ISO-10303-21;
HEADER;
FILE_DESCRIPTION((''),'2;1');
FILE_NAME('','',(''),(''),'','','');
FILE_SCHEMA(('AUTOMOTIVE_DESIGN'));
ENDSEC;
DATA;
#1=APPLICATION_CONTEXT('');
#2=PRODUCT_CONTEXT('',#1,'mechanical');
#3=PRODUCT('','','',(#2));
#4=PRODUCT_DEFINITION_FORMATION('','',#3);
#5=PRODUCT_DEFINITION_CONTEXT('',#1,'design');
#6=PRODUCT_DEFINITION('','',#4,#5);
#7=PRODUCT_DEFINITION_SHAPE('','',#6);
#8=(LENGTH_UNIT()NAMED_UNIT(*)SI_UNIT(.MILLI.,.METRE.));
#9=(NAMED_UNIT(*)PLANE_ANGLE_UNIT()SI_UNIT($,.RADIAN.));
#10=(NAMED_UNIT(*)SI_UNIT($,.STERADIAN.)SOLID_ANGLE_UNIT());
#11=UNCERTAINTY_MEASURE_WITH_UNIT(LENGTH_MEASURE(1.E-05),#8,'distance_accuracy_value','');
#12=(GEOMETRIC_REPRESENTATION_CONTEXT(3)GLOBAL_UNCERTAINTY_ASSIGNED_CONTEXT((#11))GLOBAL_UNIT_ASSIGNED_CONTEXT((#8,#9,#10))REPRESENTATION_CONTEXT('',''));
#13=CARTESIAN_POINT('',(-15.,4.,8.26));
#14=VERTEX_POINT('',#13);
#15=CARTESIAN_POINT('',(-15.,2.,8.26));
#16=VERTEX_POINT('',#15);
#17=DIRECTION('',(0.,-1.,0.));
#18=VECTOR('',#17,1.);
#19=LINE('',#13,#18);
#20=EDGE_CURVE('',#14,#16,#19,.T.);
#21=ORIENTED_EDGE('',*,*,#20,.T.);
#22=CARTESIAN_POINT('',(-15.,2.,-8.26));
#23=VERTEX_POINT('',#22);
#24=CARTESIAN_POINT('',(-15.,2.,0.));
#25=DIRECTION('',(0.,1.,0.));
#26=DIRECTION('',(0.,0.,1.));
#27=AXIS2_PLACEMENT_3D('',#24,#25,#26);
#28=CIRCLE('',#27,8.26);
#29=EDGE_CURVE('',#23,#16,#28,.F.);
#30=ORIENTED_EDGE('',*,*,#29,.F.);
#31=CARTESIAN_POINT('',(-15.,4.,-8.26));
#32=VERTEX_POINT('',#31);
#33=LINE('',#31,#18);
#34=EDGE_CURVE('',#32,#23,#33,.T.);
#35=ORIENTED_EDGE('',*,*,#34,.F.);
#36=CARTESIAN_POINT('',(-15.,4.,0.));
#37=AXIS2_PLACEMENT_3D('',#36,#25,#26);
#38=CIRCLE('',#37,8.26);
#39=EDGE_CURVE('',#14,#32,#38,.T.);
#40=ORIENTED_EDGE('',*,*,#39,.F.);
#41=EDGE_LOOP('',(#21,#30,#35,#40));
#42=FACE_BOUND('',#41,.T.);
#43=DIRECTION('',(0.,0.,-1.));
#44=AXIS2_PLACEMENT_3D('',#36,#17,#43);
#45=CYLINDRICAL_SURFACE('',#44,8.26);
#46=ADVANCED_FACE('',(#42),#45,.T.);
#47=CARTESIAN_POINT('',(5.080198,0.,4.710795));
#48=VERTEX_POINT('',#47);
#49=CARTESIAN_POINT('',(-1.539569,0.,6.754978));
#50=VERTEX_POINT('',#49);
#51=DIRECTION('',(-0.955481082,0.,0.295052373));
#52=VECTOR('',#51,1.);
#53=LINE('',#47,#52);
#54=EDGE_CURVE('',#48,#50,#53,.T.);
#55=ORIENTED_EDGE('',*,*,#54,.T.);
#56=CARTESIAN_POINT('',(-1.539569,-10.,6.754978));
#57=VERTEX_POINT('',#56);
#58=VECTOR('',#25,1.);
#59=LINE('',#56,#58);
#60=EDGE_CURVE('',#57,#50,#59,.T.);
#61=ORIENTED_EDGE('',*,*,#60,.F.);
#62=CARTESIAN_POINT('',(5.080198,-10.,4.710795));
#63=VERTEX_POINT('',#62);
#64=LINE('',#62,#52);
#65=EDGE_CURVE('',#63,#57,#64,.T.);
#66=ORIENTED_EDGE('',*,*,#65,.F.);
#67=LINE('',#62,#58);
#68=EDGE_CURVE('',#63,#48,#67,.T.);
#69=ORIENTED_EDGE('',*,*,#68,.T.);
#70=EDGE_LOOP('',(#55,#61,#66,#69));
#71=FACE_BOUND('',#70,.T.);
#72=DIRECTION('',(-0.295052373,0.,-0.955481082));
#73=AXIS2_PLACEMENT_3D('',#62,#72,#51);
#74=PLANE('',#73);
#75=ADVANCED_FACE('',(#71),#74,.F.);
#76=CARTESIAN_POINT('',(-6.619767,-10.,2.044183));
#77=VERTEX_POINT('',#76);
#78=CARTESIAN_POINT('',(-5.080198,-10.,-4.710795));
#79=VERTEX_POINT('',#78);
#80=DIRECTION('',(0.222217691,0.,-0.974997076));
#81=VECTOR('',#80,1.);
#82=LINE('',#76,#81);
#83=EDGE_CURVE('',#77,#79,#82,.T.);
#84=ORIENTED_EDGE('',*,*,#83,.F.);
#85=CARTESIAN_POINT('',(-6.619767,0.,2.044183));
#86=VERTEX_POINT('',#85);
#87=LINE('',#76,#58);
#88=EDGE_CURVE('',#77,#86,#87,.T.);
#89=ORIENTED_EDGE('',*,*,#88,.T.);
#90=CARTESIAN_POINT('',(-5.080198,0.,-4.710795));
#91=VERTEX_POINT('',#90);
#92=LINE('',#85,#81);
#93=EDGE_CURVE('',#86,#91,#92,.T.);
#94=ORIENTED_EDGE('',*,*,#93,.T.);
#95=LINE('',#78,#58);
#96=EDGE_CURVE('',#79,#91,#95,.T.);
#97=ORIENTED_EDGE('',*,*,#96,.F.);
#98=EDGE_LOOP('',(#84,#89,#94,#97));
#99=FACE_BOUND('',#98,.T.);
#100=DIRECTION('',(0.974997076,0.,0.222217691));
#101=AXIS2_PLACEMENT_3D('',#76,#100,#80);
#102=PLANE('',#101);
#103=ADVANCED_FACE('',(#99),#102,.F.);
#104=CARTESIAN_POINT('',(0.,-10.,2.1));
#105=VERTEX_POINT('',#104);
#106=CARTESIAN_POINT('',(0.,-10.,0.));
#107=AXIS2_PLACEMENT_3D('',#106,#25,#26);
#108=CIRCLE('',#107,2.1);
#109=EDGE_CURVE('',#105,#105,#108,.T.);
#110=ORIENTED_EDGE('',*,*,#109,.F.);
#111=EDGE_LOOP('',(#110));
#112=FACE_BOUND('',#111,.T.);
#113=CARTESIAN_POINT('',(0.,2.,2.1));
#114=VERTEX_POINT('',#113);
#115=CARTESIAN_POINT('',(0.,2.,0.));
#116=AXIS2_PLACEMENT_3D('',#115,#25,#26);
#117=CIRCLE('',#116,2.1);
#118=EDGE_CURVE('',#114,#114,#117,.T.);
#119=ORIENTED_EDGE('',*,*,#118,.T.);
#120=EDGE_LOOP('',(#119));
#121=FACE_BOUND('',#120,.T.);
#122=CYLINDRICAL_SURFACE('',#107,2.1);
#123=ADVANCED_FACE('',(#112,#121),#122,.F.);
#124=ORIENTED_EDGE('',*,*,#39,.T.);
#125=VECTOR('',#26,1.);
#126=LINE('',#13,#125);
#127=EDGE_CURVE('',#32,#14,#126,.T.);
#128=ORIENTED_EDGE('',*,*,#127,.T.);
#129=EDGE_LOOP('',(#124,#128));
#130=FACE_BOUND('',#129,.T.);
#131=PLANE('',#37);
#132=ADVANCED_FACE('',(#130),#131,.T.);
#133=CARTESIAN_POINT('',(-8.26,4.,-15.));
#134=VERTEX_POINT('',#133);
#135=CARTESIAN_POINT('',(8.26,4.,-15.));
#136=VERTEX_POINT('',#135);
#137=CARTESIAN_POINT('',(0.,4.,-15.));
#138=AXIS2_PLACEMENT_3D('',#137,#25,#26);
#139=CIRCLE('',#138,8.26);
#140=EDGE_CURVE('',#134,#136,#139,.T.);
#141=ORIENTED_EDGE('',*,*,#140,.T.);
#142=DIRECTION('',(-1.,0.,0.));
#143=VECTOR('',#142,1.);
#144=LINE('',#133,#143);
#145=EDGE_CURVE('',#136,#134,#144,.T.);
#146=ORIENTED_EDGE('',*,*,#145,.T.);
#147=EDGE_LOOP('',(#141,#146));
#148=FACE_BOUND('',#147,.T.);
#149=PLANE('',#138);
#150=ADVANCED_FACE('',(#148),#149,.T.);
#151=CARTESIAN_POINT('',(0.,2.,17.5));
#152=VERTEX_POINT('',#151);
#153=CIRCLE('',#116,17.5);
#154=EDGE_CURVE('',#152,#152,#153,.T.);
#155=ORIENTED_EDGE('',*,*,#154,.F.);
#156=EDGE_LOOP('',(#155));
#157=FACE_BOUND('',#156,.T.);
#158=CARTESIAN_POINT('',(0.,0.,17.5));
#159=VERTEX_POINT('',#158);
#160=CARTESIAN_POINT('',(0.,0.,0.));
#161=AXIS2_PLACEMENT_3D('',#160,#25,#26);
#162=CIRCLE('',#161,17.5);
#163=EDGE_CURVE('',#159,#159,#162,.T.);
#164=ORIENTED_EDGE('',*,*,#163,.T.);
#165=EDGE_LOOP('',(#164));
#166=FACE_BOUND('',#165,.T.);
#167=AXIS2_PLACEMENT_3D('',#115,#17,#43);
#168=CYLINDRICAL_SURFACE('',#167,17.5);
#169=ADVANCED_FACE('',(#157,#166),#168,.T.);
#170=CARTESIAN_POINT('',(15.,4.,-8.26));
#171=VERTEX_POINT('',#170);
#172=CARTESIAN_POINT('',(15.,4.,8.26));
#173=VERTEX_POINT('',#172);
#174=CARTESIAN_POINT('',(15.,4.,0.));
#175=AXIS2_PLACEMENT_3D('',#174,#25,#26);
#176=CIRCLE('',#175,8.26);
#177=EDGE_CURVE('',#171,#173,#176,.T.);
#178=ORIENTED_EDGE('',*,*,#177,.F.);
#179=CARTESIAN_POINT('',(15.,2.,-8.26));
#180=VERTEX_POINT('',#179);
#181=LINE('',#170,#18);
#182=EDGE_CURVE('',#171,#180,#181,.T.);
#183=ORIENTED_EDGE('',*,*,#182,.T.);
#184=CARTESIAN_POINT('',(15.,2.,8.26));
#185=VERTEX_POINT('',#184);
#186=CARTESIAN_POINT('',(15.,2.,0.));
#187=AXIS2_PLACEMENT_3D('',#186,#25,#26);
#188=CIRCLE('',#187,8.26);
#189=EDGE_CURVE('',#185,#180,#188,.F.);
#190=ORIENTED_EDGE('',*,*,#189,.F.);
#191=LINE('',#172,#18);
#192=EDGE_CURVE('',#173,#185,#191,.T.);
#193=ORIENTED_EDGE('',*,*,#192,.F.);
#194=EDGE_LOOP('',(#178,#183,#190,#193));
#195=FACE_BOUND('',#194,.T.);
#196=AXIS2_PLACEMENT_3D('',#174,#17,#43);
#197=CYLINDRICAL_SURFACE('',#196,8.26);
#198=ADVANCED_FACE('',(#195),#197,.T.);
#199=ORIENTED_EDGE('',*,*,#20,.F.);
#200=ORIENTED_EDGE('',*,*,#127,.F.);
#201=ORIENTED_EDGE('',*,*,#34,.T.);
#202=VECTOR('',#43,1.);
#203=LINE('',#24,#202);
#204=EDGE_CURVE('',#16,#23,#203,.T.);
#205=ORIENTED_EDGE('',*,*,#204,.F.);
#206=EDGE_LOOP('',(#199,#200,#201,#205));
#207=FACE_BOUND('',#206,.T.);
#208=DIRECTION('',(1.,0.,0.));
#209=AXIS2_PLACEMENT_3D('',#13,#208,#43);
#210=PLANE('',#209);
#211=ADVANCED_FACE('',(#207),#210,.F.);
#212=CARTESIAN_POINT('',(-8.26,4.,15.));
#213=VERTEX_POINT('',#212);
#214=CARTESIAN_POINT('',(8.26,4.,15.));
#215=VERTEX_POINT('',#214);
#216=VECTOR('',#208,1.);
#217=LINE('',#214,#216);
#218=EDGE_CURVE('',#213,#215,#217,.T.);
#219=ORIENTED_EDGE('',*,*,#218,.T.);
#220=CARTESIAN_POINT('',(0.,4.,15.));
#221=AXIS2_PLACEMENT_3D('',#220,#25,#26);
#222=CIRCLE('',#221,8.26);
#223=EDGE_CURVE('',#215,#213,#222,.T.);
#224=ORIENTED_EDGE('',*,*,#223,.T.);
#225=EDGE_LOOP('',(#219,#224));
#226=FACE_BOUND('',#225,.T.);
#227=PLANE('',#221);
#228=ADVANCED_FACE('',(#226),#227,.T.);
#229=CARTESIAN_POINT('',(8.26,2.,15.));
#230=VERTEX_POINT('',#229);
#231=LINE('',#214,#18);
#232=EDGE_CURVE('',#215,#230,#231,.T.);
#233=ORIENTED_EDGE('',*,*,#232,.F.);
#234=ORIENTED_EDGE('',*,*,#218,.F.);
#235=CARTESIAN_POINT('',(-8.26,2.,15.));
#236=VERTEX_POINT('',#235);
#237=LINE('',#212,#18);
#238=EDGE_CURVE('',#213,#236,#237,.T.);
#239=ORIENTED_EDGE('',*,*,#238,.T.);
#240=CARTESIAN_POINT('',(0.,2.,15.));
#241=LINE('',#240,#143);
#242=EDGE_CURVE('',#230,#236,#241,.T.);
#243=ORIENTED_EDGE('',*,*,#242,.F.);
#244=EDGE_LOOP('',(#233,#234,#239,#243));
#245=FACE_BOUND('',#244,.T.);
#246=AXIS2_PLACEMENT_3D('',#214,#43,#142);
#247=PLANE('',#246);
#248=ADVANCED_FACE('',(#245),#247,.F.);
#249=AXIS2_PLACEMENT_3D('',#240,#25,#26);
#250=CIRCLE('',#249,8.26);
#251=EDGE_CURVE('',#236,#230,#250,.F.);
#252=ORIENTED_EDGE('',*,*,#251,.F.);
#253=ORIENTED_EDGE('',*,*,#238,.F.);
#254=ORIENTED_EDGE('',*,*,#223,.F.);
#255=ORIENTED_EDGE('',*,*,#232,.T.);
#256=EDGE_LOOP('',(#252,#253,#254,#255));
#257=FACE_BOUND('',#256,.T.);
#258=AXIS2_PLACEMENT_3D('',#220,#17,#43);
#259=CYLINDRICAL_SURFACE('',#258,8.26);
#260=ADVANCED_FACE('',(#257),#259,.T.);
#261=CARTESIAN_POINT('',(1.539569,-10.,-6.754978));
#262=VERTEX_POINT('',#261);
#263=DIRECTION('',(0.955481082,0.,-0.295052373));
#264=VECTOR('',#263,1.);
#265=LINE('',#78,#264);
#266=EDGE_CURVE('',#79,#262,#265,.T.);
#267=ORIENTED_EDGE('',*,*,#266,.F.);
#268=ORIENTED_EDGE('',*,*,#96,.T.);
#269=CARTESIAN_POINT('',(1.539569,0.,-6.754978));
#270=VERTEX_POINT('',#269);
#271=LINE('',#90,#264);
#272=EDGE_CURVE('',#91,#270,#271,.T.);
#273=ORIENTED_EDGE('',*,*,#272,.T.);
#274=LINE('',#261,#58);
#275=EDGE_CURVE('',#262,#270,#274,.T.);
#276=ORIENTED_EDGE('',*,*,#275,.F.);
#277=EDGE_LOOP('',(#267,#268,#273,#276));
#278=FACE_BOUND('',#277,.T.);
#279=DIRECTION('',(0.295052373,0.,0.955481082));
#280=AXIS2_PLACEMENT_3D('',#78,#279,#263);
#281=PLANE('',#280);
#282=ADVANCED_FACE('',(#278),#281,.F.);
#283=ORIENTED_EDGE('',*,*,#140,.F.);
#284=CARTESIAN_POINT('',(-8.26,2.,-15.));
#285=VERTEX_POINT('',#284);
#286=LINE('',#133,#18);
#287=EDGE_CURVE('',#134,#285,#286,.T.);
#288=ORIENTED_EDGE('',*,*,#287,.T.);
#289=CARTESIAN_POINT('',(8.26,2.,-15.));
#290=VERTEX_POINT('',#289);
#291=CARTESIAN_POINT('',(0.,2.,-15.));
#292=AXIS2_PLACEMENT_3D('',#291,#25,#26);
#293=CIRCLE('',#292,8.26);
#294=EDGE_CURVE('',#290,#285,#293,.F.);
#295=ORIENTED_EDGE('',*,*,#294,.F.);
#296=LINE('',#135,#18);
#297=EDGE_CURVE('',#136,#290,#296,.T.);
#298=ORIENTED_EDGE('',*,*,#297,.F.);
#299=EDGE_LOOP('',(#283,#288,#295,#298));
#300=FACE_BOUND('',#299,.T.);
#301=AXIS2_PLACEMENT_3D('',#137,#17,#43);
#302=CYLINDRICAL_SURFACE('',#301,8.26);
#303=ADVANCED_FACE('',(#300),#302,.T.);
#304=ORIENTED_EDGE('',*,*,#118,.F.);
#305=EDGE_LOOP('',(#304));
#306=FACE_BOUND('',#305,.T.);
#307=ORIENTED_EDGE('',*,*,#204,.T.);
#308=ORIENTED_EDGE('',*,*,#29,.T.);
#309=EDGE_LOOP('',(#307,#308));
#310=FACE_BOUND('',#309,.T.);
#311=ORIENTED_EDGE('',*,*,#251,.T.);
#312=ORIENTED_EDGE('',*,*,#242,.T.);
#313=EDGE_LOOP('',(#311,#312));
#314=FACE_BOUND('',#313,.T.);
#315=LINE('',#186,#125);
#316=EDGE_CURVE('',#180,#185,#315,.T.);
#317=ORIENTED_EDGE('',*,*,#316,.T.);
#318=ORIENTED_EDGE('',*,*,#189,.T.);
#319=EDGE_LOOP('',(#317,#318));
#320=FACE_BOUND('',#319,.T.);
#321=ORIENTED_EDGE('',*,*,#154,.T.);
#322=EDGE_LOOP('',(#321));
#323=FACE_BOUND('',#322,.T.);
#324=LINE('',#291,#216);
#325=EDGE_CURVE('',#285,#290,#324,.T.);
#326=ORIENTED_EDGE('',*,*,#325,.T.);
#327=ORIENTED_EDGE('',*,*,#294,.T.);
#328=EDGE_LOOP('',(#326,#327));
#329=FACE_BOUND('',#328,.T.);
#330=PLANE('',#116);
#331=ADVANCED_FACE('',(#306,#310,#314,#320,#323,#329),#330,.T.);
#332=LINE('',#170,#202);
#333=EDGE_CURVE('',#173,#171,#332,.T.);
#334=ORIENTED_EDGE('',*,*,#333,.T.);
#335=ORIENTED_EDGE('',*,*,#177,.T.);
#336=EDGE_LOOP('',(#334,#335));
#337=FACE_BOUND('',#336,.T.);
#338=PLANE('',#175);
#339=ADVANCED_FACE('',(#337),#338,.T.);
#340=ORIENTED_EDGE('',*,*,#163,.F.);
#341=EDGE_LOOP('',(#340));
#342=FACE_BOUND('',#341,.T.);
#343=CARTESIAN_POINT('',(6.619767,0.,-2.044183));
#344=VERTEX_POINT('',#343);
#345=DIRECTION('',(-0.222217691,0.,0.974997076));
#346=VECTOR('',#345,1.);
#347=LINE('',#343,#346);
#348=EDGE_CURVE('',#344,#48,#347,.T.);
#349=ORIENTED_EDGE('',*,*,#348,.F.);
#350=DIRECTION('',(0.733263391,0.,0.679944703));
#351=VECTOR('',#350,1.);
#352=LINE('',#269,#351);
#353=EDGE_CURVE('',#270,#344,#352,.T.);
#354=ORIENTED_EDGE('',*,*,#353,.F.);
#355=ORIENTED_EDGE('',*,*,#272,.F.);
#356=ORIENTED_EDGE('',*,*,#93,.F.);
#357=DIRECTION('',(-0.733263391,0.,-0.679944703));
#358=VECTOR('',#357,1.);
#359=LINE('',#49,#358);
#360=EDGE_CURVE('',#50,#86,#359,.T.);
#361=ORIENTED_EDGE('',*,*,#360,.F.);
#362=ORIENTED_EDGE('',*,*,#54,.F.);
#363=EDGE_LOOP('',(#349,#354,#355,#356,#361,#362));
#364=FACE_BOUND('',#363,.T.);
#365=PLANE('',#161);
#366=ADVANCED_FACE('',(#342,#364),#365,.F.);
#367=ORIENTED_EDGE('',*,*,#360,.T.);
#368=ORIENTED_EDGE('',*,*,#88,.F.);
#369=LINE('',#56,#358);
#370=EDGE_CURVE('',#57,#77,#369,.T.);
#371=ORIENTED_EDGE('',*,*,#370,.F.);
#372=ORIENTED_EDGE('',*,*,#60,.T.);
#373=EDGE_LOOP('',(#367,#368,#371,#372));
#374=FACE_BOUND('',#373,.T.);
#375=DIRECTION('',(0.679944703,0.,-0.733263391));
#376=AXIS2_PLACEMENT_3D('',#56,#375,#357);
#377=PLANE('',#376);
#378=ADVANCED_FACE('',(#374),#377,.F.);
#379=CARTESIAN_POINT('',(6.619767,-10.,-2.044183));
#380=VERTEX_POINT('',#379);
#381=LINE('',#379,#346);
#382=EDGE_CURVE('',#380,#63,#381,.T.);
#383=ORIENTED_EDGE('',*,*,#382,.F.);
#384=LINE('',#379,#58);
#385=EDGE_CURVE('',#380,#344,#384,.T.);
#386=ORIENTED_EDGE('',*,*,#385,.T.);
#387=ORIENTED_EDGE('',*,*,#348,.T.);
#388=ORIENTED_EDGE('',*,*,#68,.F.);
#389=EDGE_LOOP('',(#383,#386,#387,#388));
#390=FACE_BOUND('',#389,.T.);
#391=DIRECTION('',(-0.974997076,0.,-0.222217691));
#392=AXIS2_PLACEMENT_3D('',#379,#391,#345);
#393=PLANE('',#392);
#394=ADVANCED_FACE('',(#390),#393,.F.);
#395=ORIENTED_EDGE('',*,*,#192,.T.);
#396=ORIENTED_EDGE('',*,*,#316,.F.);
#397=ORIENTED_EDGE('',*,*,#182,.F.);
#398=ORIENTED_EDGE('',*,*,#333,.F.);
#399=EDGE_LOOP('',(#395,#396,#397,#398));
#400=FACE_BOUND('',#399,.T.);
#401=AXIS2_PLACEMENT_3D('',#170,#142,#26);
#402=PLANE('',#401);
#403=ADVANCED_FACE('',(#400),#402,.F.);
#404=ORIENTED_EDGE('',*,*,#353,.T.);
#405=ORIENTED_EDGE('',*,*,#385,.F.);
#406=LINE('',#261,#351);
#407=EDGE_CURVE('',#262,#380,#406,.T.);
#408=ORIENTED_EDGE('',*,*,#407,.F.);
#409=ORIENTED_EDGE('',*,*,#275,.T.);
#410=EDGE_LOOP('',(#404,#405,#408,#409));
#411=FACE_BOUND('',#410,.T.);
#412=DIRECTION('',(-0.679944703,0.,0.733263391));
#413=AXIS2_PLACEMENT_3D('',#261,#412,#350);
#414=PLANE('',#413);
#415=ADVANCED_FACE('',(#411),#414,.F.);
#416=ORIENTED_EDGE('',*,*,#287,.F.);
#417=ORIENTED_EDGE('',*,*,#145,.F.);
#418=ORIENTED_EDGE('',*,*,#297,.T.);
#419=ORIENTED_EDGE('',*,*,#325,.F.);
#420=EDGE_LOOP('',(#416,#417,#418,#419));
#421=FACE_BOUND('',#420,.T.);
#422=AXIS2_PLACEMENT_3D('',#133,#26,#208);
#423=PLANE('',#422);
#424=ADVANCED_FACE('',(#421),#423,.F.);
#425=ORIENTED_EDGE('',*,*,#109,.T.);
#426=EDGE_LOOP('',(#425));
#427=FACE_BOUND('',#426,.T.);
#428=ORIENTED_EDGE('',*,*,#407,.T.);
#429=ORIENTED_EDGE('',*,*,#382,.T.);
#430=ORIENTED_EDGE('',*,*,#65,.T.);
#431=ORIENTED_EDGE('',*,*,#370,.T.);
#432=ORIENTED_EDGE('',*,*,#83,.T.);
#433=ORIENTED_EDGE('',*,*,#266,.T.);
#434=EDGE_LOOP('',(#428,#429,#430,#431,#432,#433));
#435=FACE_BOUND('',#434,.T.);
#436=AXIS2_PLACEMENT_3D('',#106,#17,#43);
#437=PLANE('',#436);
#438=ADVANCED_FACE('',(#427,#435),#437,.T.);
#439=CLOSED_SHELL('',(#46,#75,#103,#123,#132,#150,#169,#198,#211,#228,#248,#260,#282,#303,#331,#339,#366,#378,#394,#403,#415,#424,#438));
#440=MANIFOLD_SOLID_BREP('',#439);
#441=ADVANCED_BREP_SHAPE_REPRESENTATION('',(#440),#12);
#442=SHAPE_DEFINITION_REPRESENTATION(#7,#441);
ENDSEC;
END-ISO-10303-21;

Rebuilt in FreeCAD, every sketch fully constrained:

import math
import FreeCAD as App
import Part
import Sketcher
from FreeCAD import Vector


def add_polygon(sketch, points):
    """Adds a closed chain of lines whose ends are joined by coincident constraints."""
    first, n = sketch.GeometryCount, len(points)
    for a, b in zip(points, points[1:] + points[:1]):
        sketch.addGeometry(Part.LineSegment(App.Vector(*a, 0), App.Vector(*b, 0)), False)
    for i in range(n):
        sketch.addConstraint(Sketcher.Constraint("Coincident", first + i, 2, first + (i + 1) % n, 1))

doc = App.newDocument("Part")
params = doc.addObject("Spreadsheet::Sheet", "Params")
for row, (alias, value) in enumerate([
    ("sketch1_diameter", "35 mm"),
    ("pad1_length", "2 mm"),
    ("sketch2_radius", "8.26 mm"),
    ("pad2_length", "4 mm"),
    ("pad3_length", "10 mm"),
    ("sketch4_diameter", "4.2 mm"),
], start=1):
    params.set(f"A{row}", alias)
    params.set(f"B{row}", "=" + value)
    params.setAlias(f"B{row}", alias)

body = doc.addObject("PartDesign::Body", "Body")

sketch1 = body.newObject("Sketcher::SketchObject", "Sketch")
sketch1.AttachmentSupport = (doc.getObject("XZ_Plane"), [""])
sketch1.MapMode = "FlatFace"
sketch1.addGeometry(Part.Circle(Vector(0, 0, 0), Vector(0, 0, 1), 18), False)
sketch1.addConstraint(Sketcher.Constraint("Coincident", 0, 3, -1, 1))
sketch1.addConstraint(Sketcher.Constraint("Diameter", 0, 35.0))
sketch1.setExpression("Constraints[1]", "Params.sketch1_diameter")
pad1 = body.newObject("PartDesign::Pad", "Pad")
pad1.Profile = sketch1
pad1.setExpression("Length", "Params.pad1_length")
pad1.Reversed = True

sketch2 = body.newObject("Sketcher::SketchObject", "Sketch001")
sketch2.AttachmentSupport = (doc.getObject("XZ_Plane"), [""])
sketch2.MapMode = "FlatFace"
sketch2.addGeometry(Part.LineSegment(Vector(8, -15, 0), Vector(-8, -15, 0)), False)
sketch2.addGeometry(Part.ArcOfCircle(Part.Circle(Vector(0, -15, 0), Vector(0, 0, 1), 8), math.radians(0), math.radians(180)), False)
sketch2.addGeometry(Part.LineSegment(Vector(15, 8, 0), Vector(15, -8, 0)), False)
sketch2.addGeometry(Part.ArcOfCircle(Part.Circle(Vector(15, 0, 0), Vector(0, 0, 1), 8), math.radians(90), math.radians(270)), False)
sketch2.addGeometry(Part.LineSegment(Vector(-8, 15, 0), Vector(8, 15, 0)), False)
sketch2.addGeometry(Part.ArcOfCircle(Part.Circle(Vector(0, 15, 0), Vector(0, 0, 1), 8), math.radians(180), math.radians(360)), False)
sketch2.addGeometry(Part.LineSegment(Vector(-15, -8, 0), Vector(-15, 8, 0)), False)
sketch2.addGeometry(Part.ArcOfCircle(Part.Circle(Vector(-15, 0, 0), Vector(0, 0, 1), 8), math.radians(-90), math.radians(90)), False)
sketch2.addConstraint(Sketcher.Constraint("Coincident", 0, 1, 1, 1))
sketch2.addConstraint(Sketcher.Constraint("Coincident", 1, 2, 0, 2))
sketch2.addConstraint(Sketcher.Constraint("Coincident", 2, 1, 3, 1))
sketch2.addConstraint(Sketcher.Constraint("Coincident", 3, 2, 2, 2))
sketch2.addConstraint(Sketcher.Constraint("Coincident", 4, 1, 5, 1))
sketch2.addConstraint(Sketcher.Constraint("Coincident", 5, 2, 4, 2))
sketch2.addConstraint(Sketcher.Constraint("Coincident", 6, 1, 7, 1))
sketch2.addConstraint(Sketcher.Constraint("Coincident", 7, 2, 6, 2))
sketch2.addConstraint(Sketcher.Constraint("Horizontal", 0))
sketch2.addConstraint(Sketcher.Constraint("Vertical", 2))
sketch2.addConstraint(Sketcher.Constraint("Horizontal", 4))
sketch2.addConstraint(Sketcher.Constraint("Vertical", 6))
sketch2.addConstraint(Sketcher.Constraint("Equal", 1, 3))
sketch2.addConstraint(Sketcher.Constraint("Equal", 3, 5))
sketch2.addConstraint(Sketcher.Constraint("Equal", 5, 7))
sketch2.addConstraint(Sketcher.Constraint("Symmetric", 1, 3, 5, 3, -1, 1))
sketch2.addConstraint(Sketcher.Constraint("Symmetric", 3, 3, 7, 3, -1, 1))
sketch2.addConstraint(Sketcher.Constraint("Symmetric", 3, 2, 6, 1, -2))
sketch2.addConstraint(Sketcher.Constraint("Symmetric", 1, 2, 4, 1, -1))
sketch2.addConstraint(Sketcher.Constraint("Horizontal", 1, 3, 0, 1))
sketch2.addConstraint(Sketcher.Constraint("Vertical", 3, 3, 2, 1))
sketch2.addConstraint(Sketcher.Constraint("Radius", 1, 8.26))
sketch2.addConstraint(Sketcher.Constraint("DistanceY", 1, 3, -1, 1, 15.0))
sketch2.addConstraint(Sketcher.Constraint("DistanceX", -1, 1, 3, 3, 15.0))
sketch2.setExpression("Constraints[21]", "Params.sketch2_radius")
pad2 = body.newObject("PartDesign::Pad", "Pad001")
pad2.Profile = sketch2
pad2.setExpression("Length", "Params.pad2_length")
pad2.Reversed = True

sketch3 = body.newObject("Sketcher::SketchObject", "Sketch002")
sketch3.AttachmentSupport = (doc.getObject("XZ_Plane"), [""])
sketch3.MapMode = "FlatFace"
add_polygon(sketch3, [(-7, 2), (-5, -5), (2, -7), (7, -2), (5, 5), (-2, 7)])
sketch3.addConstraint(Sketcher.Constraint("Symmetric", 0, 2, 3, 2, -1, 1))
sketch3.addConstraint(Sketcher.Constraint("Symmetric", 1, 2, 4, 2, -1, 1))
sketch3.addConstraint(Sketcher.Constraint("Symmetric", 2, 2, 5, 2, -1, 1))
sketch3.addConstraint(Sketcher.Constraint("Equal", 0, 1))
sketch3.addConstraint(Sketcher.Constraint("Equal", 1, 2))
sketch3.addConstraint(Sketcher.Constraint("DistanceX", -1, 1, 1, 2, 1.539569))
sketch3.addConstraint(Sketcher.Constraint("DistanceX", 3, 2, 2, 2, 1.539569))
sketch3.addConstraint(Sketcher.Constraint("DistanceX", 1, 2, 3, 2, 3.540628))
sketch3.addConstraint(Sketcher.Constraint("DistanceY", 0, 2, 3, 2, 9.42159))
pad3 = body.newObject("PartDesign::Pad", "Pad002")
pad3.Profile = sketch3
pad3.setExpression("Length", "Params.pad3_length")

sketch4 = body.newObject("Sketcher::SketchObject", "Sketch003")
sketch4.AttachmentSupport = (doc.getObject("XZ_Plane"), [""])
sketch4.MapMode = "FlatFace"
sketch4.AttachmentOffset = App.Placement(Vector(0, 0, -2), App.Rotation())
sketch4.addGeometry(Part.Circle(Vector(0, 0, 0), Vector(0, 0, 1), 2.1), False)
sketch4.addConstraint(Sketcher.Constraint("Coincident", 0, 3, -1, 1))
sketch4.addConstraint(Sketcher.Constraint("Diameter", 0, 4.2))
sketch4.setExpression("Constraints[1]", "Params.sketch4_diameter")
pocket1 = body.newObject("PartDesign::Pocket", "Pocket")
pocket1.Profile = sketch4
pocket1.Type = "ThroughAll"
pocket1.Midplane = True

doc.recompute()
